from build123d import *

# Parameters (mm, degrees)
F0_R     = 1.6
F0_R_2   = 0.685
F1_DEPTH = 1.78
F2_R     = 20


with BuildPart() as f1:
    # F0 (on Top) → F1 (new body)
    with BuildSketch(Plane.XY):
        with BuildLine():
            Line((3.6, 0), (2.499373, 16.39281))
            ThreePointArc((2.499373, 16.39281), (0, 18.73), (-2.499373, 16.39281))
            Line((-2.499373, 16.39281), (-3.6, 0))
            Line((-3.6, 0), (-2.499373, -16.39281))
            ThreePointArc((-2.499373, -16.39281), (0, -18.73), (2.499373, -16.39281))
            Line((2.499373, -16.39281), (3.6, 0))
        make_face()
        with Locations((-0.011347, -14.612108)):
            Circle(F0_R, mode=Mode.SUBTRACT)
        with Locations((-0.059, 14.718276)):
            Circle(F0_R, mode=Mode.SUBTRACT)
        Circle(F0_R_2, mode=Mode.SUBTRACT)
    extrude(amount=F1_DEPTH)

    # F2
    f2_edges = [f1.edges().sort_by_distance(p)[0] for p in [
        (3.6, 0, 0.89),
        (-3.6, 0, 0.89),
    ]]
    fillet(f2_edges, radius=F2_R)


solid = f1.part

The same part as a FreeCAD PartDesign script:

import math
import FreeCAD as App
import Part
import Sketcher


def edges_at(feature, points):
    """Names of the edges that pass closest to the given points."""
    edges = feature.Shape.Edges
    near = lambda p: min(range(len(edges)), key=lambda i: edges[i].distToShape(Part.Vertex(*p))[0])
    return sorted({f"Edge{near(p) + 1}" for p in points})

doc = App.newDocument("Part")
body = doc.addObject("PartDesign::Body", "Body")

# Sketch on XY plane
sketch1 = doc.addObject("Sketcher::SketchObject", "Sketch")
body.addObject(sketch1)
sketch1.AttachmentSupport = (doc.XY_Plane, [""])
sketch1.MapMode = "FlatFace"
sketch1.addGeometry([
    Part.LineSegment(App.Vector(3.6, 0, 0), App.Vector(2.5, 16.4, 0)),  # 0
    Part.ArcOfCircle(Part.Circle(App.Vector(0, 16.2, 0), App.Vector(0, 0, 1), 2.5), math.radians(4), math.radians(176)),  # 1
    Part.LineSegment(App.Vector(-2.5, 16.4, 0), App.Vector(-3.6, 0, 0)),  # 2
    Part.LineSegment(App.Vector(-3.6, 0, 0), App.Vector(-2.5, -16.4, 0)),  # 3
    Part.ArcOfCircle(Part.Circle(App.Vector(0, -16.2, 0), App.Vector(0, 0, 1), 2.5), math.radians(-176), math.radians(-4)),  # 4
    Part.LineSegment(App.Vector(2.5, -16.4, 0), App.Vector(3.6, 0, 0)),  # 5
    Part.Circle(App.Vector(0, -14.6, 0), App.Vector(0, 0, 1), 1.6),  # 6
    Part.Circle(App.Vector(0, 0, 0), App.Vector(0, 0, 1), 0.7),  # 7
    Part.Circle(App.Vector(-0.1, 14.7, 0), App.Vector(0, 0, 1), 1.6),  # 8
], False)
sketch1.addConstraint([
    Sketcher.Constraint("Tangent", 0, 2, 1, 1),
    Sketcher.Constraint("Tangent", 1, 2, 2, 1),
    Sketcher.Constraint("Coincident", 2, 2, 3, 1),
    Sketcher.Constraint("Tangent", 3, 2, 4, 1),
    Sketcher.Constraint("Tangent", 4, 2, 5, 1),
    Sketcher.Constraint("Coincident", 5, 2, 0, 1),
    Sketcher.Constraint("Coincident", 7, 3, -1, 1),
    Sketcher.Constraint("Equal", 1, 4),
    Sketcher.Constraint("Equal", 6, 8),
    Sketcher.Constraint("Symmetric", 1, 3, 4, 3, -1, 1),
    Sketcher.Constraint("Symmetric", 2, 2, 5, 2, -1, 1),
    Sketcher.Constraint("Symmetric", 0, 2, 1, 2, -2),
    Sketcher.Constraint("Diameter", 6, 3.2),
    Sketcher.Constraint("Diameter", 7, 1.37),
    Sketcher.Constraint("Radius", 1, 2.505),
    Sketcher.Constraint("DistanceX", 2, 2, -1, 1, 3.6),
    Sketcher.Constraint("DistanceY", 4, 3, 1, 3, 32.45),
    Sketcher.Constraint("DistanceX", 8, 3, -1, 1, 0.059),
    Sketcher.Constraint("DistanceY", 4, 2, 6, 3, 1.780702),
    Sketcher.Constraint("DistanceX", 6, 3, 0, 2, 2.51072),
    Sketcher.Constraint("DistanceY", -1, 1, 8, 3, 14.718276),
])
pad1 = doc.addObject("PartDesign::Pad", "Pad")
body.addObject(pad1)
pad1.Profile = sketch1
pad1.Length = 1.78
doc.recompute()

fillet = doc.addObject("PartDesign::Fillet", "Fillet")
body.addObject(fillet)
fillet.Base = (pad1, edges_at(pad1, [(3.6, 0, 0.89), (-3.6, 0, 0.89)]))
fillet.Radius = 20

doc.recompute()
